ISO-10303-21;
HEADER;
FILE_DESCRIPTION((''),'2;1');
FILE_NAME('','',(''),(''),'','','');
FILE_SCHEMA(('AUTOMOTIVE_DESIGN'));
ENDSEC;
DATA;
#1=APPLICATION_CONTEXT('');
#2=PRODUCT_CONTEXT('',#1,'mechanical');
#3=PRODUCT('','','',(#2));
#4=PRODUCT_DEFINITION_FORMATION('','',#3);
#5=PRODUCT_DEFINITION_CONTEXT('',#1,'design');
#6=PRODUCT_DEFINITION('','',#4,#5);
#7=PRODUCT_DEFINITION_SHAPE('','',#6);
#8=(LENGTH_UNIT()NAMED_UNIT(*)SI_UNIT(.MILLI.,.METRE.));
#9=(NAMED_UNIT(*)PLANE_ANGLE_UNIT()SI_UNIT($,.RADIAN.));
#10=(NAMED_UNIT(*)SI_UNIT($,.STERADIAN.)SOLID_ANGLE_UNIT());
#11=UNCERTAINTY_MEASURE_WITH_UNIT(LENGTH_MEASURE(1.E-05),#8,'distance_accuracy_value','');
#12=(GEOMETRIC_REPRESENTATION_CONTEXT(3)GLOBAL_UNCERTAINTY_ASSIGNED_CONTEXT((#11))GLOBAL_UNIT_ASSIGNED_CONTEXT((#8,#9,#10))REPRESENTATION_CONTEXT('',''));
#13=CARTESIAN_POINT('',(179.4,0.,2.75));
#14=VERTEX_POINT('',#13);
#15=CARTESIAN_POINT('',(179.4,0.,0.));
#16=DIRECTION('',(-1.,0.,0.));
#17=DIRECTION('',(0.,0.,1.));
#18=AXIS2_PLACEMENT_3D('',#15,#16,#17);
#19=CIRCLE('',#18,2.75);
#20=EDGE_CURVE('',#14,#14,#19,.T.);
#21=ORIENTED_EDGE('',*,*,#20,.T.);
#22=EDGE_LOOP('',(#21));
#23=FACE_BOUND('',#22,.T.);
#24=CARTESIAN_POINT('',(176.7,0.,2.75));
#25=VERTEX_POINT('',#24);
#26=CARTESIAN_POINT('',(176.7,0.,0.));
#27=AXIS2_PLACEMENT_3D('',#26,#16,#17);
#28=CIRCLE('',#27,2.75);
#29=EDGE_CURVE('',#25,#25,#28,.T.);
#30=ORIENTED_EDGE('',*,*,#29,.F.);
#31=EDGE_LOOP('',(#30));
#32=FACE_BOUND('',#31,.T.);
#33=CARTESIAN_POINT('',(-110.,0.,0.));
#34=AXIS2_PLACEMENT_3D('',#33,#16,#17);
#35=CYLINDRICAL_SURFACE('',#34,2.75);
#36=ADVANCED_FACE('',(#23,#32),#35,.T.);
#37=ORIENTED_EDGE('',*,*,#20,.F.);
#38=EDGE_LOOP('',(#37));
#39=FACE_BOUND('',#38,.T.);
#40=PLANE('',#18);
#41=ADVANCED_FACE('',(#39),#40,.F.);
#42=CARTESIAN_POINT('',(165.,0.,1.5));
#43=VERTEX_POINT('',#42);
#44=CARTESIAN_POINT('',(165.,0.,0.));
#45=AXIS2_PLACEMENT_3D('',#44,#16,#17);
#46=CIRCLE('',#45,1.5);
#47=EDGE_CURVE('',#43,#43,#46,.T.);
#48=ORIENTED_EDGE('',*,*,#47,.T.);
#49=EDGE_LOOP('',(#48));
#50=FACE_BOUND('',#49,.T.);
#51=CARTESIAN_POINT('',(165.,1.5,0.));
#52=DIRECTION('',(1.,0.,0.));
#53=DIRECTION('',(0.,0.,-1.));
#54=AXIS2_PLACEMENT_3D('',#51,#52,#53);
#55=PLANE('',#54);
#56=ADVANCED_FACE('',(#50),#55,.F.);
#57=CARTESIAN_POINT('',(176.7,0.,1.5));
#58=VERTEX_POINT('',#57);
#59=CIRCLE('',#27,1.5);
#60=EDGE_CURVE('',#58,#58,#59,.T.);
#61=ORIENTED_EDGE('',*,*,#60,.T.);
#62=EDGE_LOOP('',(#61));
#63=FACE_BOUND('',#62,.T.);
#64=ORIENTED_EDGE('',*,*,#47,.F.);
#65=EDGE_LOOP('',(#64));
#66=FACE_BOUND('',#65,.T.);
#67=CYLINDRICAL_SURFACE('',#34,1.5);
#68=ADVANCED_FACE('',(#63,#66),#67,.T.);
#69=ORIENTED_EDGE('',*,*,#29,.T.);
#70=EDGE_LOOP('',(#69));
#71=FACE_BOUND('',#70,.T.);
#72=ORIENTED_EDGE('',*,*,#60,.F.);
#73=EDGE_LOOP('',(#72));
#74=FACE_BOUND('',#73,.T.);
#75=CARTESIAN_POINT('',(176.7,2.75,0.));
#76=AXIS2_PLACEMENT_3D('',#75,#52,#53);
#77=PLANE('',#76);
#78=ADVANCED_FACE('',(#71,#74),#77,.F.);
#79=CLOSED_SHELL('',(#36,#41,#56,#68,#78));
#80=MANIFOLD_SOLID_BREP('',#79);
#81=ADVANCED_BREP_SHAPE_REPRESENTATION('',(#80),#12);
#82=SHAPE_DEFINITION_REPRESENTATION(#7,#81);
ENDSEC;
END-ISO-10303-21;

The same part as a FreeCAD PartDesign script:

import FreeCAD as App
import Part
import Sketcher


def add_polygon(sketch, points):
    """Adds a closed chain of lines whose ends are joined by coincident constraints."""
    first, n = sketch.GeometryCount, len(points)
    for a, b in zip(points, points[1:] + points[:1]):
        sketch.addGeometry(Part.LineSegment(App.Vector(*a, 0), App.Vector(*b, 0)), False)
    for i in range(n):
        sketch.addConstraint(Sketcher.Constraint("Coincident", first + i, 2, first + (i + 1) % n, 1))

doc = App.newDocument("Part")
params = doc.addObject("Spreadsheet::Sheet", "Params")
for row, (alias, value) in enumerate([
    ("sketch1_width", "14.4 mm"),
    ("sketch1_width2", "2.7 mm"),
    ("sketch1_height", "1.5 mm"),
    ("sketch1_height2", "2.75 mm"),
    ("revolution_angle", "360 deg"),
], start=1):
    params.set(f"A{row}", alias)
    params.set(f"B{row}", "=" + value)
    params.setAlias(f"B{row}", alias)

body = doc.addObject("PartDesign::Body", "Body")

sketch1 = body.newObject("Sketcher::SketchObject", "Sketch")
sketch1.AttachmentSupport = (doc.getObject("XY_Plane"), [""])
sketch1.MapMode = "FlatFace"
add_polygon(sketch1, [(165, 0), (179.4, 0), (179.4, 2.8), (176.7, 2.8), (176.7, 1.5), (165, 1.5)])
sketch1.addConstraint(Sketcher.Constraint("Horizontal", 0))
sketch1.addConstraint(Sketcher.Constraint("Vertical", 1))
sketch1.addConstraint(Sketcher.Constraint("Horizontal", 2))
sketch1.addConstraint(Sketcher.Constraint("Vertical", 3))
sketch1.addConstraint(Sketcher.Constraint("Horizontal", 4))
sketch1.addConstraint(Sketcher.Constraint("Vertical", 5))
sketch1.addConstraint(Sketcher.Constraint("PointOnObject", 0, 2, -1))
sketch1.addConstraint(Sketcher.Constraint("DistanceX", 0, 1, 0, 2, 14.4))
sketch1.addConstraint(Sketcher.Constraint("DistanceX", 2, 2, 2, 1, 2.7))
sketch1.addConstraint(Sketcher.Constraint("DistanceY", 5, 2, 5, 1, 1.5))
sketch1.addConstraint(Sketcher.Constraint("DistanceX", -1, 1, 4, 2, 165.0))
sketch1.addConstraint(Sketcher.Constraint("DistanceY", 1, 1, 1, 2, 2.75))
sketch1.setExpression("Constraints[13]", "Params.sketch1_width")
sketch1.setExpression("Constraints[14]", "Params.sketch1_width2")
sketch1.setExpression("Constraints[15]", "Params.sketch1_height")
sketch1.setExpression("Constraints[17]", "Params.sketch1_height2")
revolution = body.newObject("PartDesign::Revolution", "Revolution")
revolution.Profile = sketch1
revolution.ReferenceAxis = (sketch1, ["H_Axis"])
revolution.setExpression("Angle", "Params.revolution_angle")

doc.recompute()
